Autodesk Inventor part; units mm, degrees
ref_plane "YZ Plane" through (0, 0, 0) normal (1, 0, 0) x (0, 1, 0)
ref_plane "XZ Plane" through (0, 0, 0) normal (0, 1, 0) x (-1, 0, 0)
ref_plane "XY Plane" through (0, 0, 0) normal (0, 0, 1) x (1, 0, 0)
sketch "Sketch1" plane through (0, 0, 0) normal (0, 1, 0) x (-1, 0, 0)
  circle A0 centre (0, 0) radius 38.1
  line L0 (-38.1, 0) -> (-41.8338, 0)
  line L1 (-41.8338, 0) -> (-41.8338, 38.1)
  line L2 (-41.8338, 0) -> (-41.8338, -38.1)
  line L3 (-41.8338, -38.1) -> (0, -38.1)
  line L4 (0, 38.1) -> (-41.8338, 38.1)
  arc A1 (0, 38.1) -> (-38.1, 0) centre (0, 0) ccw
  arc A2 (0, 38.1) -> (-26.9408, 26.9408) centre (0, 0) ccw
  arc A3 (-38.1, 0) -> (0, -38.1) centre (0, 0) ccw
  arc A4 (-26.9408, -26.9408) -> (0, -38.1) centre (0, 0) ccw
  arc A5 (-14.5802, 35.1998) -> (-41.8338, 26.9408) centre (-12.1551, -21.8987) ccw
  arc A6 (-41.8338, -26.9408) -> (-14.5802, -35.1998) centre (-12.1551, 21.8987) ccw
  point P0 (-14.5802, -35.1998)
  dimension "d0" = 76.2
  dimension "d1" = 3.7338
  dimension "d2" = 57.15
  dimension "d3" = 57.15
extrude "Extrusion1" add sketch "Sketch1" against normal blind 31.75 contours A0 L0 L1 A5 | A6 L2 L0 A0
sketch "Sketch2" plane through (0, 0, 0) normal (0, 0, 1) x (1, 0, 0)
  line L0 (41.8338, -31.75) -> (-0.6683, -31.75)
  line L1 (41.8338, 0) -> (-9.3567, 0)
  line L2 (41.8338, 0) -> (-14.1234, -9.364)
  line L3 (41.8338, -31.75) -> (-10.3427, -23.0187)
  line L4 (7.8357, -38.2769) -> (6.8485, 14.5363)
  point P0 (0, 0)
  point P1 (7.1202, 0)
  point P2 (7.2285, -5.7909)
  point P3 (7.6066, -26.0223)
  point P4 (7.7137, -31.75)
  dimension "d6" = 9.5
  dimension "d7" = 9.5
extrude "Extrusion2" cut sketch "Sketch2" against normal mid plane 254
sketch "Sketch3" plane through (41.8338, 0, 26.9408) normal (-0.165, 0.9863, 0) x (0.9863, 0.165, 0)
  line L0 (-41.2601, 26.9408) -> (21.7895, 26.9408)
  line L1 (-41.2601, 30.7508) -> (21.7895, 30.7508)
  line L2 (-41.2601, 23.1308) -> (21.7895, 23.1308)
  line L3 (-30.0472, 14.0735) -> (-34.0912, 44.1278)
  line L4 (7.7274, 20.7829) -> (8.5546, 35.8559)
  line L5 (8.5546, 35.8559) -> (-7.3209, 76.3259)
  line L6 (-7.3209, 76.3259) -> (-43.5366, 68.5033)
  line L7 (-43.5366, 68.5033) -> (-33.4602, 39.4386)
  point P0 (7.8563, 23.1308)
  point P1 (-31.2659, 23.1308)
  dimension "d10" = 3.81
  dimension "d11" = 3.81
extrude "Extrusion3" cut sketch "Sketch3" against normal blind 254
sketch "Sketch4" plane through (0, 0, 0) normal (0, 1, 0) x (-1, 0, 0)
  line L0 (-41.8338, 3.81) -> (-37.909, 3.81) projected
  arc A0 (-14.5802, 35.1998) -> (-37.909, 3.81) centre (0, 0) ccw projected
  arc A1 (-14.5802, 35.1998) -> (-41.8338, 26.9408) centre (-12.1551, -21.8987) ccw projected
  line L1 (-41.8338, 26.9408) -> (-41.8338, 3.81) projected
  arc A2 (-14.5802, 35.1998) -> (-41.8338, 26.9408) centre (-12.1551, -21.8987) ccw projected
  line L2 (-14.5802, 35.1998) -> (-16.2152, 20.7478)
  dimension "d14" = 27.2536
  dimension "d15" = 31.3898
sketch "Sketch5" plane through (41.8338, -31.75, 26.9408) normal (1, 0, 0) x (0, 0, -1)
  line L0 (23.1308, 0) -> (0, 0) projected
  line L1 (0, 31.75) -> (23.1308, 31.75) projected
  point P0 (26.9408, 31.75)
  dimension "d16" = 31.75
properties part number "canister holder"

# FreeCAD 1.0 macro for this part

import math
import FreeCAD as App
import Part
import Sketcher

V = App.Vector
Q = App.Units.Quantity


def add_polygon(sketch, points):
    """Adds a closed chain of lines whose ends are joined by coincident constraints."""
    first, n = sketch.GeometryCount, len(points)
    for a, b in zip(points, points[1:] + points[:1]):
        sketch.addGeometry(Part.LineSegment(App.Vector(*a, 0), App.Vector(*b, 0)), False)
    for i in range(n):
        sketch.addConstraint(Sketcher.Constraint("Coincident", first + i, 2, first + (i + 1) % n, 1))

doc = App.newDocument("Part")
body = doc.addObject("PartDesign::Body", "Body")

sketch1 = body.newObject("Sketcher::SketchObject", "Sketch")
sketch1.AttachmentSupport = (doc.getObject("XZ_Plane"), [""])
sketch1.MapMode = "FlatFace"
sketch1.addGeometry(Part.ArcOfCircle(Part.Circle(V(12, -22, 0), V(0, 0, 1), 57), math.radians(59), math.radians(88)), False)
sketch1.addGeometry(Part.LineSegment(V(42, 27, 0), V(42, -27, 0)), False)
sketch1.addGeometry(Part.ArcOfCircle(Part.Circle(V(12, 22, 0), V(0, 0, 1), 57), math.radians(-88), math.radians(-59)), False)
sketch1.addGeometry(Part.ArcOfCircle(Part.Circle(V(0, 0, 0), V(0, 0, 1), 38), math.radians(-68), math.radians(68)), False)
sketch1.addConstraint(Sketcher.Constraint("Coincident", 0, 1, 1, 1))
sketch1.addConstraint(Sketcher.Constraint("Coincident", 1, 2, 2, 2))
sketch1.addConstraint(Sketcher.Constraint("Coincident", 2, 1, 3, 1))
sketch1.addConstraint(Sketcher.Constraint("Coincident", 3, 2, 0, 2))
sketch1.addConstraint(Sketcher.Constraint("Vertical", 1))
sketch1.addConstraint(Sketcher.Constraint("Coincident", 3, 3, -1, 1))
sketch1.addConstraint(Sketcher.Constraint("Equal", 0, 2))
sketch1.addConstraint(Sketcher.Constraint("Symmetric", 0, 3, 2, 3, -1))
sketch1.addConstraint(Sketcher.Constraint("Radius", 3, Q("1.5 in")))
sketch1.addConstraint(Sketcher.Constraint("Radius", 0, Q("2.25 in")))
sketch1.addConstraint(Sketcher.Constraint("DistanceX", -1, 1, 0, 1, Q("1.647 in")))
sketch1.addConstraint(Sketcher.Constraint("DistanceY", 1, 2, 1, 1, Q("53.8816 mm")))
sketch1.addConstraint(Sketcher.Constraint("DistanceY", 0, 3, 2, 3, Q("1.7243 in")))
pad1 = body.newObject("PartDesign::Pad", "Pad")
pad1.Profile = sketch1
pad1.Length = Q("1.25 in")

sketch2 = body.newObject("Sketcher::SketchObject", "Sketch001")
sketch2.AttachmentSupport = (doc.getObject("XY_Plane"), [""])
sketch2.MapMode = "FlatFace"
add_polygon(sketch2, [(7, 0), (7, -6), (42, 0)])
add_polygon(sketch2, [(8, -32), (42, -32), (8, -26)])
sketch2.addConstraint(Sketcher.Constraint("Horizontal", 2))
sketch2.addConstraint(Sketcher.Constraint("Horizontal", 3))
sketch2.addConstraint(Sketcher.Constraint("PointOnObject", 1, 2, -1))
sketch2.addConstraint(Sketcher.Constraint("Parallel", 0, 5))
sketch2.addConstraint(Sketcher.Constraint("Vertical", 1, 2, 3, 2))
sketch2.addConstraint(Sketcher.Constraint("Angle", 1, Q("9.5 deg")))
sketch2.addConstraint(Sketcher.Constraint("Angle", 4, Q("170.5 deg")))
sketch2.addConstraint(Sketcher.Constraint("DistanceY", 3, 2, -1, 1, Q("1.25 in")))
sketch2.addConstraint(Sketcher.Constraint("Angle", 0, Q("-88.9291 deg")))
sketch2.addConstraint(Sketcher.Constraint("DistanceX", 3, 1, 3, 2, Q("1.3433 in")))
sketch2.addConstraint(Sketcher.Constraint("DistanceY", 0, 2, -1, 1, Q("0.228 in")))
sketch2.addConstraint(Sketcher.Constraint("DistanceX", -1, 1, 1, 2, Q("1.647 in")))
pocket1 = body.newObject("PartDesign::Pocket", "Pocket")
pocket1.Profile = sketch2
pocket1.Length = Q("10 in")
pocket1.Midplane = True

sketch3 = body.newObject("Sketcher::SketchObject", "Sketch002")
sketch3.Placement = App.Placement(V(41.8338, 0, 26.9408), App.Rotation(V(0.986285602, 0.165047606, 0), V(0, 0, -1.000000001), V(-0.165047606, 0.986285602, 0), "ZXY"))
add_polygon(sketch3, [(-31, 23), (8, 23), (9, 36), (-7, 76), (-44, 69), (-33, 39)])
sketch3.addConstraint(Sketcher.Constraint("Horizontal", 0))
sketch3.addConstraint(Sketcher.Constraint("Angle", 2, Q("111.419 deg")))
sketch3.addConstraint(Sketcher.Constraint("Angle", 4, Q("-70.8792 deg")))
sketch3.addConstraint(Sketcher.Constraint("DistanceY", 0, 2, 1, 2, Q("0.501 in")))
sketch3.addConstraint(Sketcher.Constraint("Distance", 3, Q("1.4587 in")))
sketch3.addConstraint(Sketcher.Constraint("Distance", 4, Q("1.2111 in")))
sketch3.addConstraint(Sketcher.Constraint("DistanceX", 0, 1, 0, 2, Q("39.1222 mm")))
sketch3.addConstraint(Sketcher.Constraint("DistanceX", -1, 1, 0, 2, Q("0.3093 in")))
sketch3.addConstraint(Sketcher.Constraint("DistanceX", -1, 1, 1, 2, Q("0.3368 in")))
sketch3.addConstraint(Sketcher.Constraint("DistanceY", -1, 1, 4, 2, Q("1.5527 in")))
sketch3.addConstraint(Sketcher.Constraint("DistanceY", 1, 2, 2, 2, Q("1.5933 in")))
sketch3.addConstraint(Sketcher.Constraint("DistanceX", 4, 2, 2, 2, Q("1.0291 in")))
pocket2 = body.newObject("PartDesign::Pocket", "Pocket001")
pocket2.Profile = sketch3
pocket2.Length = Q("10 in")

doc.recompute()
